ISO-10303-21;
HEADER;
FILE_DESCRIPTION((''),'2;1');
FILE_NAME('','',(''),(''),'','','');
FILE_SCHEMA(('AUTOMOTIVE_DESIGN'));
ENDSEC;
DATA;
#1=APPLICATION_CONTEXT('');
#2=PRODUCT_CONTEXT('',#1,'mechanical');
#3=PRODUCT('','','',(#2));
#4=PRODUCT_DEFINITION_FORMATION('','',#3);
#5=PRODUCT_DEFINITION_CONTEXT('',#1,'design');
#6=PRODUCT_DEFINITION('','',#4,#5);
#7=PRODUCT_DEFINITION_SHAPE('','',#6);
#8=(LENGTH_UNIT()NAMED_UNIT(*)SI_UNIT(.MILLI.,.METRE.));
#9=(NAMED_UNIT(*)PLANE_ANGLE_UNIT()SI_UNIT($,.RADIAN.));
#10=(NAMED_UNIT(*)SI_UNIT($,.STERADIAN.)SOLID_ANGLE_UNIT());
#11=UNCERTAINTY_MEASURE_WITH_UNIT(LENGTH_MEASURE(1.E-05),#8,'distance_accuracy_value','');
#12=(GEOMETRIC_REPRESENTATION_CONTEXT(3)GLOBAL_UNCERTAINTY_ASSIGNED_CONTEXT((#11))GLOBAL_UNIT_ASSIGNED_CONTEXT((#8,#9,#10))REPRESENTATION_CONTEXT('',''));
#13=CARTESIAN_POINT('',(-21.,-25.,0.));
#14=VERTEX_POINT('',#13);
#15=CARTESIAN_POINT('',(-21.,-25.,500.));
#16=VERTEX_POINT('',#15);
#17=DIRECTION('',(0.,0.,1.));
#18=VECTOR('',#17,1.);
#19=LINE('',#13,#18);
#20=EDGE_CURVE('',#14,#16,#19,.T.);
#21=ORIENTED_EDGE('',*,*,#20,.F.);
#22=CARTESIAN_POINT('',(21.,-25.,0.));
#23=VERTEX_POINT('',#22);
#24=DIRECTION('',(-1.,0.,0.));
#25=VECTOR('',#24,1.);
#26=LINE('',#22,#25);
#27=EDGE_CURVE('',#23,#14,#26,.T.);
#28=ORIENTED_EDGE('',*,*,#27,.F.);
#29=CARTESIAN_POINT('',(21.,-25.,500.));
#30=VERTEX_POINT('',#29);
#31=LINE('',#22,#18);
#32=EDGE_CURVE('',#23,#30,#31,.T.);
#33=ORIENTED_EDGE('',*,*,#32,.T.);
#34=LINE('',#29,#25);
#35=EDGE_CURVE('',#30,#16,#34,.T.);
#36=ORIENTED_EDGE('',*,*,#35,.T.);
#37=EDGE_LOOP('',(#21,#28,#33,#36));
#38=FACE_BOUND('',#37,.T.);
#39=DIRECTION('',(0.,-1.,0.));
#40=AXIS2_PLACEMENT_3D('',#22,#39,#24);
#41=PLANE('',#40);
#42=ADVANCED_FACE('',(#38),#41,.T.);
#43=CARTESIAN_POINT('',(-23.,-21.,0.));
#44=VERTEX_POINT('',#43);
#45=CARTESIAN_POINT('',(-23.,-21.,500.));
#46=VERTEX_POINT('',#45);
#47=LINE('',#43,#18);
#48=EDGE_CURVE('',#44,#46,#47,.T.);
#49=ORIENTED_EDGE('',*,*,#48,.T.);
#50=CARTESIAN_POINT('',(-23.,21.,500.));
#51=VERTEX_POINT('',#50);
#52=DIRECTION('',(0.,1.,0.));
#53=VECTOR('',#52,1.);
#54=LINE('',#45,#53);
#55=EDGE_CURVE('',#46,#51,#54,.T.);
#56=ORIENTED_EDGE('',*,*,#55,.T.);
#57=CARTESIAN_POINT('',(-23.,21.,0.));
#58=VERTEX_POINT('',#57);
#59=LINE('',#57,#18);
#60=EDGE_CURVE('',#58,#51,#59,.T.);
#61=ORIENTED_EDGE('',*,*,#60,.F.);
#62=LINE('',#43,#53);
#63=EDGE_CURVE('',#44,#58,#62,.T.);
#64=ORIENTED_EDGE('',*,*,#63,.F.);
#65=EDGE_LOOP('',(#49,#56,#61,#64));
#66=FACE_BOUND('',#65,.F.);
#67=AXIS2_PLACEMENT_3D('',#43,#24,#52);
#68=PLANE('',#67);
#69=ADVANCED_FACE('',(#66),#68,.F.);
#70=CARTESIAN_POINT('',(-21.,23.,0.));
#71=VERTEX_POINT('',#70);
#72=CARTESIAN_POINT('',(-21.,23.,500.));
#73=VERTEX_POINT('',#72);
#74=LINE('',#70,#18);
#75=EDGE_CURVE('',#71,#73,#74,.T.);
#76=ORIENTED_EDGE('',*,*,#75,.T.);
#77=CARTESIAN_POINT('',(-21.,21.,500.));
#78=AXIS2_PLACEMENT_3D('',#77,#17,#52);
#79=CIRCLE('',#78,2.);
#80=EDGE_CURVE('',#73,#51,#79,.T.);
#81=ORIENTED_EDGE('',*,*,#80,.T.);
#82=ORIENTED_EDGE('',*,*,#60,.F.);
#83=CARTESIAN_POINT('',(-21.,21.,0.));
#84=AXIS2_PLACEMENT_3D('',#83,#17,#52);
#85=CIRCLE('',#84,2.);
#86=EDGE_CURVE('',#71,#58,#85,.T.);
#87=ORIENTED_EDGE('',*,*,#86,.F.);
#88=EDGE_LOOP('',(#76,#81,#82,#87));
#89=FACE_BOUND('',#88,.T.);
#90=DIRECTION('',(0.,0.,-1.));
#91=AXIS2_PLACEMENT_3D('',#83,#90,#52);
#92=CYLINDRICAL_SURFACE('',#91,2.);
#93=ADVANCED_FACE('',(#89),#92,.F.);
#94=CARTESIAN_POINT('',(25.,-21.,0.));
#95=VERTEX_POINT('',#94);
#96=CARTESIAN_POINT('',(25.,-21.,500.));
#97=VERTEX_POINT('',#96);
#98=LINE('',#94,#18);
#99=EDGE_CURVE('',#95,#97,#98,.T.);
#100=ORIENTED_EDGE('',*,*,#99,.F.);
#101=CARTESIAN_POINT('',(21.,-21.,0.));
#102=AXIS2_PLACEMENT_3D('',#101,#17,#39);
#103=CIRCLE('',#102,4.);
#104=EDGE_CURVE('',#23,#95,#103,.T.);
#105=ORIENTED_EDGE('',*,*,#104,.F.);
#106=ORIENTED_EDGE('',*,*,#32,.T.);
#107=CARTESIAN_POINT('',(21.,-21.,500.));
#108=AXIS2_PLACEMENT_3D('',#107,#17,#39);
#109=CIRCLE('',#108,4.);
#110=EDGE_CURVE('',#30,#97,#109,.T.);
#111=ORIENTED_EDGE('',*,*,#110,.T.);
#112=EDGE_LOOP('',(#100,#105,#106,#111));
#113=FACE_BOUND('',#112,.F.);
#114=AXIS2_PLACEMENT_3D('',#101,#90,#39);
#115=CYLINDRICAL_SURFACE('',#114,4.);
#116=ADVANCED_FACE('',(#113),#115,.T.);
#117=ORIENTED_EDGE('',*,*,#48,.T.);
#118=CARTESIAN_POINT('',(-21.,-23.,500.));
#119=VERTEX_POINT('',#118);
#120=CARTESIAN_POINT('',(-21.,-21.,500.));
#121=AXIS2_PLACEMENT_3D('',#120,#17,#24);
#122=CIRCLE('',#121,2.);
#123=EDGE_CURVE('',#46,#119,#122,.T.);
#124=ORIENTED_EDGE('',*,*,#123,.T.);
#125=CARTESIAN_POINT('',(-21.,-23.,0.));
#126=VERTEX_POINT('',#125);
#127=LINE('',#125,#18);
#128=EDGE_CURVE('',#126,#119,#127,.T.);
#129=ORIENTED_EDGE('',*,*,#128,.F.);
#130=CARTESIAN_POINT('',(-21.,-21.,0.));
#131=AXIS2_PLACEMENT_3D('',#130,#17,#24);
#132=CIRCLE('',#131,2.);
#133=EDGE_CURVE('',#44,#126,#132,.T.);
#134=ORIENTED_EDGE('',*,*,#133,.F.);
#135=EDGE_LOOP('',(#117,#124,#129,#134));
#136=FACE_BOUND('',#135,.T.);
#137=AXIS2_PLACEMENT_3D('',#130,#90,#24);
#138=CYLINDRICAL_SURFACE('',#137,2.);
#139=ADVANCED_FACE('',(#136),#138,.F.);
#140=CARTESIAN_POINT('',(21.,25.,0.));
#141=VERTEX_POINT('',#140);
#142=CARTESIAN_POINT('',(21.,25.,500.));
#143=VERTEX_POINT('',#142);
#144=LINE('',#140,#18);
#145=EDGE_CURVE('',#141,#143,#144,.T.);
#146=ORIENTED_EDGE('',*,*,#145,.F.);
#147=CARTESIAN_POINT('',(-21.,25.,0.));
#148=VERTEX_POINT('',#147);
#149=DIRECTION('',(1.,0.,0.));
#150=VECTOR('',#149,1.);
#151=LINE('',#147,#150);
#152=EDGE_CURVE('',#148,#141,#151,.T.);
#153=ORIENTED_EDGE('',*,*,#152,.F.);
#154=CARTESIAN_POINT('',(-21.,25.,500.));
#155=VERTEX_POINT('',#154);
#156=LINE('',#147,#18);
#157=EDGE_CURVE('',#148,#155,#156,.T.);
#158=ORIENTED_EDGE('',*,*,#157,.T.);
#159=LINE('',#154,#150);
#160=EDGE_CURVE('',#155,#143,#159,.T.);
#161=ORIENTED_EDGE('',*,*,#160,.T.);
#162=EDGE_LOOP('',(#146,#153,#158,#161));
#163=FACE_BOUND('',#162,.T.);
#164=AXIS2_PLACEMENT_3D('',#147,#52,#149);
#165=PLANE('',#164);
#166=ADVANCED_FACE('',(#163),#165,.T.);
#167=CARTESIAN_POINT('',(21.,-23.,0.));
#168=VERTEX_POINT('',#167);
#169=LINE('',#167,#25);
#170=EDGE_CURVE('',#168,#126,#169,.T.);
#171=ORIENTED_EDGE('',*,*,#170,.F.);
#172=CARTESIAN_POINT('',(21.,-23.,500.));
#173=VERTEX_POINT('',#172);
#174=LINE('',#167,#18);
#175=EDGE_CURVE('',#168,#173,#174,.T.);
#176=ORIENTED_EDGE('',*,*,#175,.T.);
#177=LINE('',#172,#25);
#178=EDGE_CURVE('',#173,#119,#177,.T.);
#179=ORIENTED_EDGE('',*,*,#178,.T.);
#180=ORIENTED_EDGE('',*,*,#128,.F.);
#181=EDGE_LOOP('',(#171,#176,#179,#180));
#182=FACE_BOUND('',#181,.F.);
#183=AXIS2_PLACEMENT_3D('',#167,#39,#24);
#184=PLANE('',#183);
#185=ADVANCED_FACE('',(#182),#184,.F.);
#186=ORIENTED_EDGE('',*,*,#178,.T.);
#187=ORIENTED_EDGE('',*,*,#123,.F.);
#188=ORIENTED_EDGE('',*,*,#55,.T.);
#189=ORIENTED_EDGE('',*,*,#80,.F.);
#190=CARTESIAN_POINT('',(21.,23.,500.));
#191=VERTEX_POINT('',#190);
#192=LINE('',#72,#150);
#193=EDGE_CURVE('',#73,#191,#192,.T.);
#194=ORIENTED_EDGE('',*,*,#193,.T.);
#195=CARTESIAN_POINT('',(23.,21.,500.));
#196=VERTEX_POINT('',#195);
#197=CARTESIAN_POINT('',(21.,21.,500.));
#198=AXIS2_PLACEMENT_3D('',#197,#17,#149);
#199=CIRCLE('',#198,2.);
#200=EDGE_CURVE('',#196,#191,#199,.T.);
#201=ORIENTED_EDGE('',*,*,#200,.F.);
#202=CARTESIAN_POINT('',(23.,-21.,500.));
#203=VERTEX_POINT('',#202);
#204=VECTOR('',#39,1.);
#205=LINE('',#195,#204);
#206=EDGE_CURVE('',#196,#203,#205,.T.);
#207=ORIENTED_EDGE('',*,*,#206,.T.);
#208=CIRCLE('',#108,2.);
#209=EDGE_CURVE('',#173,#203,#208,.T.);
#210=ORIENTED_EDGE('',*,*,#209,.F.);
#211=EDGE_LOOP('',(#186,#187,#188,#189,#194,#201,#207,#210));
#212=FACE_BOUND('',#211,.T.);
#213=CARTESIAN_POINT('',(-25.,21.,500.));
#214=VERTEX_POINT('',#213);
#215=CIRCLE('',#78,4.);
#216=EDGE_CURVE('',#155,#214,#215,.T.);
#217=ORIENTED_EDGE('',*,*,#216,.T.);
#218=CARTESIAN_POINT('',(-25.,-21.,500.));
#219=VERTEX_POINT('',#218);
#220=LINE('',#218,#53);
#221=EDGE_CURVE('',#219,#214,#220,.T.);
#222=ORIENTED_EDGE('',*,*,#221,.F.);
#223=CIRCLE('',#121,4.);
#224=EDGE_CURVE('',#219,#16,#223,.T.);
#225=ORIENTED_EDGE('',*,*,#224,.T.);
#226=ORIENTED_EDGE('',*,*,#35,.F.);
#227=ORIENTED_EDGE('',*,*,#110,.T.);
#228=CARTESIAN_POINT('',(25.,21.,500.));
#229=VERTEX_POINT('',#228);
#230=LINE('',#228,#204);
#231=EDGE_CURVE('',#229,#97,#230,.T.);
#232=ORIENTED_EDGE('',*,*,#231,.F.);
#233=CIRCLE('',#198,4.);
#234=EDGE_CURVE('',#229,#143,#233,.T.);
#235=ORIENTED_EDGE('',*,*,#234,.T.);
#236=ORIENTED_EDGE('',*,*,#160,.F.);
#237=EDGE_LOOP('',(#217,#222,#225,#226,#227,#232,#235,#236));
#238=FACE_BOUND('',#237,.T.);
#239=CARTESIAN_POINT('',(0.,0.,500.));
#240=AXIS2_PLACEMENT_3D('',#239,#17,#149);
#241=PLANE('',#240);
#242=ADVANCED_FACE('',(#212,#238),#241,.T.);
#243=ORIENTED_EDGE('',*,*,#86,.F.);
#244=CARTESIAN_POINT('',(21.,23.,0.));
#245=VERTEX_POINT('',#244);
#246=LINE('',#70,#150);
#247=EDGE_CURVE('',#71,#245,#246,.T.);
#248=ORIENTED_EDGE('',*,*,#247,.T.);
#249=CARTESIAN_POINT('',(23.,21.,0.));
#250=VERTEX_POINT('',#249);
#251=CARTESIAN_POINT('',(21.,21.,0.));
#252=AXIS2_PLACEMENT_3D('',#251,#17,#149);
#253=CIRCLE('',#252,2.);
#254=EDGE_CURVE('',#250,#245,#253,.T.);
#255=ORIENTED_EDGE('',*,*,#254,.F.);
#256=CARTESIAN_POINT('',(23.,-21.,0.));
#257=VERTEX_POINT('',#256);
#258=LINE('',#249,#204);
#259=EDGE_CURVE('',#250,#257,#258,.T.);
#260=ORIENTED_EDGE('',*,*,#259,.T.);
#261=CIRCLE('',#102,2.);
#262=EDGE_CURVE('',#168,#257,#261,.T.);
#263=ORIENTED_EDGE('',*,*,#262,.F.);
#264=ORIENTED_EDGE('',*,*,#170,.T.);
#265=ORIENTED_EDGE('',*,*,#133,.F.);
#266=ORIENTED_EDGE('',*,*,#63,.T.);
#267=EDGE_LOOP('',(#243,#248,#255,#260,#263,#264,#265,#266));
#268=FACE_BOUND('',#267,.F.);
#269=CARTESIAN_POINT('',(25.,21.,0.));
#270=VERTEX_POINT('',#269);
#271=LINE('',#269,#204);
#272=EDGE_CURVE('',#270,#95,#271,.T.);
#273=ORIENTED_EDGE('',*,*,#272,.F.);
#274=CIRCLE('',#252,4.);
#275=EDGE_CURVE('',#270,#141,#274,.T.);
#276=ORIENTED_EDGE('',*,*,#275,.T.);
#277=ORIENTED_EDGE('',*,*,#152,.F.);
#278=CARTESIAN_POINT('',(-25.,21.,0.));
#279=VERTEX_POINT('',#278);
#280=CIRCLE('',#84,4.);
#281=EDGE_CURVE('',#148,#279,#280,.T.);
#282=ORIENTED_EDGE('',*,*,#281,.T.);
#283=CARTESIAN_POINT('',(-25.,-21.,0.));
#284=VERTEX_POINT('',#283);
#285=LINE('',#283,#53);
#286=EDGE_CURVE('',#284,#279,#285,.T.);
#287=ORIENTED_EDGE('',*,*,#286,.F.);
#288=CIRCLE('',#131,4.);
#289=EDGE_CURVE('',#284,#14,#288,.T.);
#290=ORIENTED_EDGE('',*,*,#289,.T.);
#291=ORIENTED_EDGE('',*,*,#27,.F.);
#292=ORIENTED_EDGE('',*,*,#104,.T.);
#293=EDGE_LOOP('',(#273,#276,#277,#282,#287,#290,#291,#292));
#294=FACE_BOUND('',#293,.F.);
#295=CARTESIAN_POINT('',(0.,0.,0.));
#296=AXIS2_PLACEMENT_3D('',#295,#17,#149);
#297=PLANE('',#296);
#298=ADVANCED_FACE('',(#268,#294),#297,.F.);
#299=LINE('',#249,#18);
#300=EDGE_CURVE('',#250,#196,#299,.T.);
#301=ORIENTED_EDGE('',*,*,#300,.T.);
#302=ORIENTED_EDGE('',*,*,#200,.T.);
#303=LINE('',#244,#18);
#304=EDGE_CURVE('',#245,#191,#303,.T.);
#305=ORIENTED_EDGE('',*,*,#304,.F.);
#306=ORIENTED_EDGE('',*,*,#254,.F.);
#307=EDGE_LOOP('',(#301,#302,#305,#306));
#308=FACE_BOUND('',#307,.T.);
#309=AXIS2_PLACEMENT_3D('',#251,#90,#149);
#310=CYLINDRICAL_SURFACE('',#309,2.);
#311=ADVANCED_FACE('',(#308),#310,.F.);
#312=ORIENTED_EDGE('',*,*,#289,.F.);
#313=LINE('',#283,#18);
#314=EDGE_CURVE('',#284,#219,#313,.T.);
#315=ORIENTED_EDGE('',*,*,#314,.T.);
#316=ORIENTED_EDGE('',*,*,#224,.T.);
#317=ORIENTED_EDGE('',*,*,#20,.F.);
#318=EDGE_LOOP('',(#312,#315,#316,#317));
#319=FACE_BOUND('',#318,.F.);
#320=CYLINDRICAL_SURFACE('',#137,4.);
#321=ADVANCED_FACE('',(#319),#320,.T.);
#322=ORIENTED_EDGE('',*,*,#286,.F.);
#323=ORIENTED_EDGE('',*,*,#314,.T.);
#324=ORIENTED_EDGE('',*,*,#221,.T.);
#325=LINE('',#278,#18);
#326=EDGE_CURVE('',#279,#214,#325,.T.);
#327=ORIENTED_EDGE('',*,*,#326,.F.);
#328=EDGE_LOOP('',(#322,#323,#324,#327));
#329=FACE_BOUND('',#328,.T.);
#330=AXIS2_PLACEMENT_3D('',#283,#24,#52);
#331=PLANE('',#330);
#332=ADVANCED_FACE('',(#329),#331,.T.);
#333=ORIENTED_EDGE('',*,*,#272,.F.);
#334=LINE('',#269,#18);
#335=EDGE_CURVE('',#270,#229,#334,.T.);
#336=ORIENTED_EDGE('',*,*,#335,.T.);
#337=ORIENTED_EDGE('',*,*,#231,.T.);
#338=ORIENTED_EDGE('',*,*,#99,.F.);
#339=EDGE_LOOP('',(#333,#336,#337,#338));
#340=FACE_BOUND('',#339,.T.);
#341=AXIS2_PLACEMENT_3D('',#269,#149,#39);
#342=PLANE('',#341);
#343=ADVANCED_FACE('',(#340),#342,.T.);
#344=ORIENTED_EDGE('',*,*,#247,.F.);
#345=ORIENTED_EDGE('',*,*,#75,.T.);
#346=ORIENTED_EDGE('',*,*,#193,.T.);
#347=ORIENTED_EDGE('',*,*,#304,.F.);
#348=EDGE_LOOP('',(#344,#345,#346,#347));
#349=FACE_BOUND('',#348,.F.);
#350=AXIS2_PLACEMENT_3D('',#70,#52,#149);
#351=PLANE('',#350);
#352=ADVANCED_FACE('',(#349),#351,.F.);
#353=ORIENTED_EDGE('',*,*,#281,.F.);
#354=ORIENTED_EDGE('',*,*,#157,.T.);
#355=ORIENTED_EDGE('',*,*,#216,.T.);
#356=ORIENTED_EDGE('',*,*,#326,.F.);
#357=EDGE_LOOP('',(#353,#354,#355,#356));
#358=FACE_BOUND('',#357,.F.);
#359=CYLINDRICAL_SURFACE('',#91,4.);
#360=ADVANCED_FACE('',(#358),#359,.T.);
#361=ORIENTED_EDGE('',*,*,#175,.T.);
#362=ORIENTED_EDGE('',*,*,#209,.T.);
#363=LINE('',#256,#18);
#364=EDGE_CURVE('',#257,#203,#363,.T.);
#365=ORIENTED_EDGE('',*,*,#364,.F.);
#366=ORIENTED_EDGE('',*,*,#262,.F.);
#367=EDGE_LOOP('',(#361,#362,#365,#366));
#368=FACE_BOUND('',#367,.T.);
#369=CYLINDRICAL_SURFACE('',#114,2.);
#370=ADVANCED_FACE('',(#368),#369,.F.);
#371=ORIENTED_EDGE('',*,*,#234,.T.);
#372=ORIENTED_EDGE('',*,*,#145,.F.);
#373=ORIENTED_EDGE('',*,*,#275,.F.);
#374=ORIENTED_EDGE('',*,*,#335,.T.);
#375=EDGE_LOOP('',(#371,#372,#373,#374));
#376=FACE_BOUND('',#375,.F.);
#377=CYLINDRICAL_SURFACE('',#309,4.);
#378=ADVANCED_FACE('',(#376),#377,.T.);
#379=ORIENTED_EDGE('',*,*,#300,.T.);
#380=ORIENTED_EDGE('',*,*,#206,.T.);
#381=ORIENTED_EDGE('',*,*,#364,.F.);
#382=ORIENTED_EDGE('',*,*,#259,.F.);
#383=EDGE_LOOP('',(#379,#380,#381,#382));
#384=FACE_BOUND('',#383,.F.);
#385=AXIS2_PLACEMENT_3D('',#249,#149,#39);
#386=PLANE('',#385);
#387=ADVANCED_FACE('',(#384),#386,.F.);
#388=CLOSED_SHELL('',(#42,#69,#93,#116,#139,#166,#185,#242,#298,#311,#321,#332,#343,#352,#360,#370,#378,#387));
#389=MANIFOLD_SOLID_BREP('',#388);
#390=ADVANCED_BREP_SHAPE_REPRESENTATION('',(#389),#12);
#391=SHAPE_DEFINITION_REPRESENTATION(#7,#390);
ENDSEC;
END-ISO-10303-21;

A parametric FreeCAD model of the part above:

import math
import FreeCAD as App
import Part
import Sketcher

V = App.Vector
Q = App.Units.Quantity

doc = App.newDocument("Part")
params = doc.addObject("Spreadsheet::Sheet", "Params")
for row, (alias, value) in enumerate([
    ("sketch1_radius", "4 mm"),
    ("sketch1_radius2", "2 mm"),
    ("pad1_length", "500 mm"),
], start=1):
    params.set(f"A{row}", alias)
    params.set(f"B{row}", "=" + value)
    params.setAlias(f"B{row}", alias)

body = doc.addObject("PartDesign::Body", "Body")

sketch1 = doc.addObject("Sketcher::SketchObject", "Sketch")
body.addObject(sketch1)
sketch1.AttachmentSupport = (doc.XY_Plane, [""])
sketch1.MapMode = "FlatFace"
sketch1.addGeometry(Part.LineSegment(V(-25, 21, 0), V(-25, -21, 0)), False)
sketch1.addGeometry(Part.ArcOfCircle(Part.Circle(V(-21, -21, 0), V(0, 0, 1), 4), math.radians(180), math.radians(270)), False)
sketch1.addGeometry(Part.LineSegment(V(-21, -25, 0), V(21, -25, 0)), False)
sketch1.addGeometry(Part.ArcOfCircle(Part.Circle(V(21, -21, 0), V(0, 0, 1), 4), math.radians(-90), math.radians(0)), False)
sketch1.addGeometry(Part.LineSegment(V(25, -21, 0), V(25, 21, 0)), False)
sketch1.addGeometry(Part.ArcOfCircle(Part.Circle(V(21, 21, 0), V(0, 0, 1), 4), math.radians(0), math.radians(90)), False)
sketch1.addGeometry(Part.LineSegment(V(21, 25, 0), V(-21, 25, 0)), False)
sketch1.addGeometry(Part.ArcOfCircle(Part.Circle(V(-21, 21, 0), V(0, 0, 1), 4), math.radians(90), math.radians(180)), False)
sketch1.addGeometry(Part.ArcOfCircle(Part.Circle(V(-21, 21, 0), V(0, 0, 1), 2), math.radians(90), math.radians(180)), False)
sketch1.addGeometry(Part.LineSegment(V(-21, 23, 0), V(21, 23, 0)), False)
sketch1.addGeometry(Part.ArcOfCircle(Part.Circle(V(21, 21, 0), V(0, 0, 1), 2), math.radians(0), math.radians(90)), False)
sketch1.addGeometry(Part.LineSegment(V(23, 21, 0), V(23, -21, 0)), False)
sketch1.addGeometry(Part.ArcOfCircle(Part.Circle(V(21, -21, 0), V(0, 0, 1), 2), math.radians(-90), math.radians(0)), False)
sketch1.addGeometry(Part.LineSegment(V(21, -23, 0), V(-21, -23, 0)), False)
sketch1.addGeometry(Part.ArcOfCircle(Part.Circle(V(-21, -21, 0), V(0, 0, 1), 2), math.radians(180), math.radians(270)), False)
sketch1.addGeometry(Part.LineSegment(V(-23, -21, 0), V(-23, 21, 0)), False)
sketch1.addConstraint(Sketcher.Constraint("Tangent", 0, 2, 1, 1))
sketch1.addConstraint(Sketcher.Constraint("Tangent", 1, 2, 2, 1))
sketch1.addConstraint(Sketcher.Constraint("Tangent", 2, 2, 3, 1))
sketch1.addConstraint(Sketcher.Constraint("Tangent", 3, 2, 4, 1))
sketch1.addConstraint(Sketcher.Constraint("Tangent", 4, 2, 5, 1))
sketch1.addConstraint(Sketcher.Constraint("Tangent", 5, 2, 6, 1))
sketch1.addConstraint(Sketcher.Constraint("Tangent", 6, 2, 7, 1))
sketch1.addConstraint(Sketcher.Constraint("Tangent", 7, 2, 0, 1))
sketch1.addConstraint(Sketcher.Constraint("Tangent", 8, 1, 9, 1))
sketch1.addConstraint(Sketcher.Constraint("Tangent", 9, 2, 10, 2))
sketch1.addConstraint(Sketcher.Constraint("Tangent", 10, 1, 11, 1))
sketch1.addConstraint(Sketcher.Constraint("Tangent", 11, 2, 12, 2))
sketch1.addConstraint(Sketcher.Constraint("Tangent", 12, 1, 13, 1))
sketch1.addConstraint(Sketcher.Constraint("Tangent", 13, 2, 14, 2))
sketch1.addConstraint(Sketcher.Constraint("Tangent", 14, 1, 15, 1))
sketch1.addConstraint(Sketcher.Constraint("Tangent", 15, 2, 8, 2))
sketch1.addConstraint(Sketcher.Constraint("Vertical", 0))
sketch1.addConstraint(Sketcher.Constraint("Horizontal", 2))
sketch1.addConstraint(Sketcher.Constraint("Vertical", 4))
sketch1.addConstraint(Sketcher.Constraint("Horizontal", 6))
sketch1.addConstraint(Sketcher.Constraint("Horizontal", 9))
sketch1.addConstraint(Sketcher.Constraint("Vertical", 11))
sketch1.addConstraint(Sketcher.Constraint("Horizontal", 13))
sketch1.addConstraint(Sketcher.Constraint("Vertical", 15))
sketch1.addConstraint(Sketcher.Constraint("Coincident", 8, 3, 7, 3))
sketch1.addConstraint(Sketcher.Constraint("Coincident", 10, 3, 5, 3))
sketch1.addConstraint(Sketcher.Constraint("Coincident", 12, 3, 3, 3))
sketch1.addConstraint(Sketcher.Constraint("Equal", 1, 3))
sketch1.addConstraint(Sketcher.Constraint("Equal", 3, 5))
sketch1.addConstraint(Sketcher.Constraint("Equal", 5, 7))
sketch1.addConstraint(Sketcher.Constraint("Equal", 12, 14))
sketch1.addConstraint(Sketcher.Constraint("Symmetric", 1, 3, 5, 3, -1, 1))
sketch1.addConstraint(Sketcher.Constraint("Equal", 13, 0))
sketch1.addConstraint(Sketcher.Constraint("Radius", 1, Q("4 mm")))
sketch1.addConstraint(Sketcher.Constraint("Radius", 8, Q("2 mm")))
sketch1.addConstraint(Sketcher.Constraint("DistanceX", 0, 2, -1, 1, Q("25 mm")))
sketch1.setExpression("Constraints[33]", "Params.sketch1_radius")
sketch1.setExpression("Constraints[34]", "Params.sketch1_radius2")
pad1 = doc.addObject("PartDesign::Pad", "Pad")
body.addObject(pad1)
pad1.Profile = sketch1
pad1.setExpression("Length", "Params.pad1_length")

doc.recompute()
